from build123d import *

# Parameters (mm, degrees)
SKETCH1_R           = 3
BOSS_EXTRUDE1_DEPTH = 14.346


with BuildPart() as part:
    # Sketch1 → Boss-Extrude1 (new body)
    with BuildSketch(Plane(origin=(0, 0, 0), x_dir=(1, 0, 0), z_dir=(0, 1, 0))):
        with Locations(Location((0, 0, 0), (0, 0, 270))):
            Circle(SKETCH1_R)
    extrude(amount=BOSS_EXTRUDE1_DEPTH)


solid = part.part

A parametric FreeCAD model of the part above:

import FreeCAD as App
import Part
import Sketcher
from FreeCAD import Vector
Q = App.Units.Quantity

doc = App.newDocument("Part")
params = doc.addObject("Spreadsheet::Sheet", "Params")
for row, (alias, value) in enumerate([
    ("sketch1_diameter", "6 mm"),
    ("pad1_length", "14.346 mm"),
], start=1):
    params.set(f"A{row}", alias)
    params.set(f"B{row}", "=" + value)
    params.setAlias(f"B{row}", alias)

body = doc.addObject("PartDesign::Body", "Body")

sketch1 = doc.addObject("Sketcher::SketchObject", "Sketch")
body.addObject(sketch1)
sketch1.AttachmentSupport = (doc.XZ_Plane, [""])
sketch1.MapMode = "FlatFace"
sketch1.addGeometry(Part.Circle(Vector(0, 0, 0), Vector(0, 0, 1), 3), False)
sketch1.addConstraint(Sketcher.Constraint("Coincident", 0, 3, -1, 1))
sketch1.addConstraint(Sketcher.Constraint("Diameter", 0, Q("6 mm")))
sketch1.setExpression("Constraints[1]", "Params.sketch1_diameter")
pad1 = doc.addObject("PartDesign::Pad", "Pad")
body.addObject(pad1)
pad1.Profile = sketch1
pad1.setExpression("Length", "Params.pad1_length")
pad1.Reversed = True

doc.recompute()
